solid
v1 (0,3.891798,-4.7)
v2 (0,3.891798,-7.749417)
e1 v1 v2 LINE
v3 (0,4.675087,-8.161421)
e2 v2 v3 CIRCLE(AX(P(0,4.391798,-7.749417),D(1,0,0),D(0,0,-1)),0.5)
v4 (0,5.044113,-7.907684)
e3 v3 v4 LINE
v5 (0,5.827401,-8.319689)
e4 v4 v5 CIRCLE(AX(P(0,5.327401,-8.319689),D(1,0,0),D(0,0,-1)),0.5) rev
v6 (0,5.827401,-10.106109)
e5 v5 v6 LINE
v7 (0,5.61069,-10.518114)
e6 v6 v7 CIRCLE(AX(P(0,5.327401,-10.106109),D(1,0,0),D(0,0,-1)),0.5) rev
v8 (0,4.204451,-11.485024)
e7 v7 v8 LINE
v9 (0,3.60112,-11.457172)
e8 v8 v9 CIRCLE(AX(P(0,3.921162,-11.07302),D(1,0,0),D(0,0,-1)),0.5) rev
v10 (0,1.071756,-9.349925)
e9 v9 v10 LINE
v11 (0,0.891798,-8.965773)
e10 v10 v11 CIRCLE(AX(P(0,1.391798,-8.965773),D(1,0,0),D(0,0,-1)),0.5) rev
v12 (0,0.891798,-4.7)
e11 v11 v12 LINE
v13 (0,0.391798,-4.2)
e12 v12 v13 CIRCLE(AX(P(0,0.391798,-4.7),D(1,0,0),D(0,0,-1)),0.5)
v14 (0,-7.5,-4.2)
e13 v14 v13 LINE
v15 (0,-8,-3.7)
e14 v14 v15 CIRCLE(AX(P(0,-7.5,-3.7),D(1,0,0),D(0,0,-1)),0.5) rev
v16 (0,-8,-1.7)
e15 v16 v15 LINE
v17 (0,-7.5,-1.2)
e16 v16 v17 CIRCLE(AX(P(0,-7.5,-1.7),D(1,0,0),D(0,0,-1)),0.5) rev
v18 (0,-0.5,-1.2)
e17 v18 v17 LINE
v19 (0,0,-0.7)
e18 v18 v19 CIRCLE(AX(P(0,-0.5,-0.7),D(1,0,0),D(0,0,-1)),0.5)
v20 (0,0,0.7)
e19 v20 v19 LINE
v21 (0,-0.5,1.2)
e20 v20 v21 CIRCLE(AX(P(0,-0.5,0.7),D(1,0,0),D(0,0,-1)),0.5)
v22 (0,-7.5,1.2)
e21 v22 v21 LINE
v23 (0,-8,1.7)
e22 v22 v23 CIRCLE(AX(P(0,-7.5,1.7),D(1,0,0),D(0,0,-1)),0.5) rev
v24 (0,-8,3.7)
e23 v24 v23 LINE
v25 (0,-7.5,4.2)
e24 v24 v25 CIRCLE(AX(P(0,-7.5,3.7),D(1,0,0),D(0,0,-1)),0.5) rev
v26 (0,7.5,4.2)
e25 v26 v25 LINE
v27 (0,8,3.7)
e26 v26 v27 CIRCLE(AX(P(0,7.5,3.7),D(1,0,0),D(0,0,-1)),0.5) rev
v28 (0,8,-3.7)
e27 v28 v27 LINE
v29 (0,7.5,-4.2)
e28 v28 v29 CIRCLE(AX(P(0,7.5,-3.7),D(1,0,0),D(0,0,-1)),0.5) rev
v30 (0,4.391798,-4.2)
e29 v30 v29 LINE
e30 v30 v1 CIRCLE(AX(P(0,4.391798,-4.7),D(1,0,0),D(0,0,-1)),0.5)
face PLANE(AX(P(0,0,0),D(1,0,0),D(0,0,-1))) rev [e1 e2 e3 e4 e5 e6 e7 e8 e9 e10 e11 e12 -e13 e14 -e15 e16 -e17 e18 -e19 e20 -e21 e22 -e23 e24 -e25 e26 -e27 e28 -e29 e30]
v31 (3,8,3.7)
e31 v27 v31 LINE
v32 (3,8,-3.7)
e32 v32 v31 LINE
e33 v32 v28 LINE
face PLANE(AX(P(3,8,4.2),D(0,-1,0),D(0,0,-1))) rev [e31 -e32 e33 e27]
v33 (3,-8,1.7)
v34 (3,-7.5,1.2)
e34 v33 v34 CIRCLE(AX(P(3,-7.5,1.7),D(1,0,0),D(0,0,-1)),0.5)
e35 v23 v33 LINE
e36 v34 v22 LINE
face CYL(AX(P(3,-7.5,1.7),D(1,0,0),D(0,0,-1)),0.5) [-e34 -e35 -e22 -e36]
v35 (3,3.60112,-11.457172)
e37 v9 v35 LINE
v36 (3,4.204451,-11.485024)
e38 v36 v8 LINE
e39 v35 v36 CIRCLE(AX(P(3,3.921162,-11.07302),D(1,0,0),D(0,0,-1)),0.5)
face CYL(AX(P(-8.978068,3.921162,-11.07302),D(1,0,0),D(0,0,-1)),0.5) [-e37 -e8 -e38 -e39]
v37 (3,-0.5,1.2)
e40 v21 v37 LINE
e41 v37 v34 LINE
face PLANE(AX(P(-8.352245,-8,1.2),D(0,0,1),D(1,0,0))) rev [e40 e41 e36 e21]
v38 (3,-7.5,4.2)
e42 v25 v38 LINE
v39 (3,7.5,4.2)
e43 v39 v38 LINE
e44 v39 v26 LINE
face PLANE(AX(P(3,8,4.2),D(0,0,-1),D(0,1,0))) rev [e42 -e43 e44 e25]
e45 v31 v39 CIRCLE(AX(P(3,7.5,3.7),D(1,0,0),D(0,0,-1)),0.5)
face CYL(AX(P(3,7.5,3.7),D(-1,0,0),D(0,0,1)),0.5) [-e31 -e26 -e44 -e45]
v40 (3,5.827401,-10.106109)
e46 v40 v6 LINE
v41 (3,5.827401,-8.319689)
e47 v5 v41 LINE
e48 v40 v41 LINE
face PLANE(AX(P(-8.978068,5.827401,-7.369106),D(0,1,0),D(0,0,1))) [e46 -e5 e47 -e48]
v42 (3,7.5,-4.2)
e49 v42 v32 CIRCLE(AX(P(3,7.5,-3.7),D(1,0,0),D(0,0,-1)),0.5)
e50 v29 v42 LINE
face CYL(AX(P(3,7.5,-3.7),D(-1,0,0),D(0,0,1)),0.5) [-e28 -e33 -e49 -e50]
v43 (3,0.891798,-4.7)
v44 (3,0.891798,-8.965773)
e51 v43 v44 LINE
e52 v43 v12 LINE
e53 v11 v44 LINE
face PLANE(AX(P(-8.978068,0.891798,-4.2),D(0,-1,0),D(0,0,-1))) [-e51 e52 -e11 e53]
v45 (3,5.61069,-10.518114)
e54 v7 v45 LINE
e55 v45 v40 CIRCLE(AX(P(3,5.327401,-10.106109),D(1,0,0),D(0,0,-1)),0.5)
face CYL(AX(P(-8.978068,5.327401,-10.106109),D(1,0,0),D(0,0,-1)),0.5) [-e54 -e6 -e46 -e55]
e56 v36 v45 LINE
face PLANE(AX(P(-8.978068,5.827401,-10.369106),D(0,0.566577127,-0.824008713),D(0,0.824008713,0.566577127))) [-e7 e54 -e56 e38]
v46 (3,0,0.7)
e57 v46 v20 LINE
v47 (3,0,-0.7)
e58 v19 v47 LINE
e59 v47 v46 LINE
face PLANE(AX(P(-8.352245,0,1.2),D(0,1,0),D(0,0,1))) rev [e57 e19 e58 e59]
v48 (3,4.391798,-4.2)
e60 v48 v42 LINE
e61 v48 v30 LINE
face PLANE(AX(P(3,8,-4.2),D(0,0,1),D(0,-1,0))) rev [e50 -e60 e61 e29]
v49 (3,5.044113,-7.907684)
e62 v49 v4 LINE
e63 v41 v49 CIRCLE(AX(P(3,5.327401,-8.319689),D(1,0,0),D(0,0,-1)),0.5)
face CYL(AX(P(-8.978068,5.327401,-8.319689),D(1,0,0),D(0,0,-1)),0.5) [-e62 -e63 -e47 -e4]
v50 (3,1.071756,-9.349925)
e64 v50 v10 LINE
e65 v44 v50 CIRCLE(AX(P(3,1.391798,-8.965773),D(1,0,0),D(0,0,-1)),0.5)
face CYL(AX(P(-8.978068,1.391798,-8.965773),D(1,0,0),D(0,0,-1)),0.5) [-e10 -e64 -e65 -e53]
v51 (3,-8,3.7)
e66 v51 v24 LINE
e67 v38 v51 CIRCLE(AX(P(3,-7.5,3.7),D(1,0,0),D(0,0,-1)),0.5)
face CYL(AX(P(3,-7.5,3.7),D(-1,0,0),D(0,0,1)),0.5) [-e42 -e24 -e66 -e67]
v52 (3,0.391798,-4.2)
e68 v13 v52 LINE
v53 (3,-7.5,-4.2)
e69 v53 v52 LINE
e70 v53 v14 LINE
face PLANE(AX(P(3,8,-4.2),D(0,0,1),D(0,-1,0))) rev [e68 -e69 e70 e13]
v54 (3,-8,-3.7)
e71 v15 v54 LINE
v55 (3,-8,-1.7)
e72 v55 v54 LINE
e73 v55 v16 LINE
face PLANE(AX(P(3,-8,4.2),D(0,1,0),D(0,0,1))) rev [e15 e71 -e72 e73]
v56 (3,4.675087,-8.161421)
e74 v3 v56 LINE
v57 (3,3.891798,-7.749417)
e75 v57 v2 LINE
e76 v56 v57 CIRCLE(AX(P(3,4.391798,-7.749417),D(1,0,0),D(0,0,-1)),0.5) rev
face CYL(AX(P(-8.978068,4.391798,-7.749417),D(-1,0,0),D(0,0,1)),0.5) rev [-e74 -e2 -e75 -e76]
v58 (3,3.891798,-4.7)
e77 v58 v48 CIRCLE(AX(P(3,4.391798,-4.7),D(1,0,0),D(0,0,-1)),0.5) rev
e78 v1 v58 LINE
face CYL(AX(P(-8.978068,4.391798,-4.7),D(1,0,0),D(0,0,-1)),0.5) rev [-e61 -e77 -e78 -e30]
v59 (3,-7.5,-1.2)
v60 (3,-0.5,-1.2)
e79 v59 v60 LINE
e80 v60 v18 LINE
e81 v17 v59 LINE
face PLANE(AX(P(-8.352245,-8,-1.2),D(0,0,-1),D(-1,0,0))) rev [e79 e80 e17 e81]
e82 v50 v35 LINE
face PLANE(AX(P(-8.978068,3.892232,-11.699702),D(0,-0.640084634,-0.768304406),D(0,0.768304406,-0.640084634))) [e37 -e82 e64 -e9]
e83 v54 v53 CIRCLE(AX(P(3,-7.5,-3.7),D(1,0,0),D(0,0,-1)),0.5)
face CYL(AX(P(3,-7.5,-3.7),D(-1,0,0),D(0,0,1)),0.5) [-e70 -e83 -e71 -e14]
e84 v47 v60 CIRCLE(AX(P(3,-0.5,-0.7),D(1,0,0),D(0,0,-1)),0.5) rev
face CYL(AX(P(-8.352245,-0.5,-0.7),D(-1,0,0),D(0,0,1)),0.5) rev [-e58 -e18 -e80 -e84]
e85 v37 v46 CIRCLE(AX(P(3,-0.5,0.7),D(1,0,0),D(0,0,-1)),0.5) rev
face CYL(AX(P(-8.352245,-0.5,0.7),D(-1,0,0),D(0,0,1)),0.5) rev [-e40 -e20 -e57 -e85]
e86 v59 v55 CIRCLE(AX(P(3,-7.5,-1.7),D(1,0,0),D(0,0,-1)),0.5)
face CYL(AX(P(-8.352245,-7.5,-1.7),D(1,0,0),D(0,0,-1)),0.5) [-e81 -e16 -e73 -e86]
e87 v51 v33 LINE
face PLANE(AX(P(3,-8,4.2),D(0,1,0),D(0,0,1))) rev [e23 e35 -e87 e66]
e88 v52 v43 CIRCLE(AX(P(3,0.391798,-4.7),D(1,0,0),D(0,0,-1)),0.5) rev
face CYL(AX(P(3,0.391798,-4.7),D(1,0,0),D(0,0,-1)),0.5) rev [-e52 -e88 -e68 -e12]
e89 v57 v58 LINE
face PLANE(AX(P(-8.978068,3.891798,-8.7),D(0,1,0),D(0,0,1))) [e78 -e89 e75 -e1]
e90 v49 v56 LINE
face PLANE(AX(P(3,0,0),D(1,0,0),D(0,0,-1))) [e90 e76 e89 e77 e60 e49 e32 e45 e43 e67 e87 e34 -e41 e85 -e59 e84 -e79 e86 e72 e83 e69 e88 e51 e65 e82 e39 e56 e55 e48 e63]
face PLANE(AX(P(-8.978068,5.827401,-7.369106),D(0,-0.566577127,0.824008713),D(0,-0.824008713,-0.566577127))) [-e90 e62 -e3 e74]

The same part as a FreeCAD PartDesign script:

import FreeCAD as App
import Part
import Sketcher

V = App.Vector
Q = App.Units.Quantity


def edges_at(feature, points):
    """Names of the edges that pass closest to the given points."""
    edges = feature.Shape.Edges
    near = lambda p: min(range(len(edges)), key=lambda i: edges[i].distToShape(Part.Vertex(*p))[0])
    return sorted({f"Edge{near(p) + 1}" for p in points})

doc = App.newDocument("Part")
body = doc.addObject("PartDesign::Body", "Body")

sketch1 = body.newObject("Sketcher::SketchObject", "Sketch")
sketch1.AttachmentSupport = (doc.getObject("YZ_Plane"), [""])
sketch1.MapMode = "FlatFace"
sketch1.addGeometry([
    Part.LineSegment(V(8, 4, 0), V(-8, 4, 0)),
    Part.LineSegment(V(-8, 4, 0), V(-8, -4, 0)),
    Part.LineSegment(V(-8, -4, 0), V(8, -4, 0)),
    Part.LineSegment(V(8, -4, 0), V(8, 4, 0)),
], False)
sketch1.addConstraint([
    Sketcher.Constraint("Coincident", 0, 2, 1, 1),
    Sketcher.Constraint("Coincident", 1, 2, 2, 1),
    Sketcher.Constraint("Coincident", 2, 2, 3, 1),
    Sketcher.Constraint("Coincident", 3, 2, 0, 1),
    Sketcher.Constraint("Horizontal", 0),
    Sketcher.Constraint("Vertical", 1),
    Sketcher.Constraint("Horizontal", 2),
    Sketcher.Constraint("Vertical", 3),
    Sketcher.Constraint("Symmetric", 0, 2, 2, 2, -1, 1),
    Sketcher.Constraint("DistanceX", 0, 2, 0, 1, Q("16 mm")),
    Sketcher.Constraint("DistanceY", 1, 2, 1, 1, Q("8.4 mm")),
])
pad1 = body.newObject("PartDesign::Pad", "Pad")
pad1.Profile = sketch1
pad1.Length = 3

sketch2 = body.newObject("Sketcher::SketchObject", "Sketch001")
sketch2.AttachmentSupport = (doc.getObject("YZ_Plane"), [""])
sketch2.MapMode = "FlatFace"
sketch2.AttachmentOffset = App.Placement(V(0, 0, 3), App.Rotation())
sketch2.addGeometry([
    Part.LineSegment(V(0, 1.2, 0), V(-8, 1.2, 0)),
    Part.LineSegment(V(-8, 1.2, 0), V(-8, -1.2, 0)),
    Part.LineSegment(V(-8, -1.2, 0), V(0, -1.2, 0)),
    Part.LineSegment(V(0, -1.2, 0), V(0, 1.2, 0)),
], False)
sketch2.addConstraint([
    Sketcher.Constraint("Coincident", 0, 2, 1, 1),
    Sketcher.Constraint("Coincident", 1, 2, 2, 1),
    Sketcher.Constraint("Coincident", 2, 2, 3, 1),
    Sketcher.Constraint("Coincident", 3, 2, 0, 1),
    Sketcher.Constraint("Horizontal", 0),
    Sketcher.Constraint("Vertical", 1),
    Sketcher.Constraint("Horizontal", 2),
    Sketcher.Constraint("Vertical", 3),
    Sketcher.Constraint("Symmetric", 2, 2, 3, 2, -1, 1),
    Sketcher.Constraint("DistanceX", 0, 2, 0, 1, Q("8 mm")),
    Sketcher.Constraint("DistanceY", 1, 2, 1, 1, Q("2.4 mm")),
])
pocket1 = body.newObject("PartDesign::Pocket", "Pocket")
pocket1.Profile = sketch2
pocket1.Length = 3

sketch3 = body.newObject("Sketcher::SketchObject", "Sketch002")
sketch3.AttachmentSupport = (doc.getObject("YZ_Plane"), [""])
sketch3.MapMode = "FlatFace"
sketch3.AttachmentOffset = App.Placement(V(0, 0, 3), App.Rotation())
sketch3.addGeometry([
    Part.LineSegment(V(3.9, -4.2, 0), V(0.9, -4.2, 0)),
    Part.LineSegment(V(0.9, -4.2, 0), V(0.9, -9.2, 0)),
    Part.LineSegment(V(0.9, -9.2, 0), V(3.9, -11.7, 0)),
    Part.LineSegment(V(3.9, -11.7, 0), V(5.8, -10.4, 0)),
    Part.LineSegment(V(5.8, -10.4, 0), V(5.8, -7.4, 0)),
    Part.LineSegment(V(5.8, -7.4, 0), V(3.9, -8.7, 0)),
    Part.LineSegment(V(3.9, -8.7, 0), V(3.9, -4.2, 0)),
], False)
sketch3.addConstraint([
    Sketcher.Constraint("Coincident", 0, 2, 1, 1),
    Sketcher.Constraint("Coincident", 1, 2, 2, 1),
    Sketcher.Constraint("Coincident", 2, 2, 3, 1),
    Sketcher.Constraint("Coincident", 3, 2, 4, 1),
    Sketcher.Constraint("Coincident", 4, 2, 5, 1),
    Sketcher.Constraint("Coincident", 5, 2, 6, 1),
    Sketcher.Constraint("Coincident", 6, 2, 0, 1),
    Sketcher.Constraint("Horizontal", 0),
    Sketcher.Constraint("Vertical", 1),
    Sketcher.Constraint("Vertical", 4),
    Sketcher.Constraint("Vertical", 6),
    Sketcher.Constraint("Parallel", 3, 5),
    Sketcher.Constraint("Equal", 0, 4),
    Sketcher.Constraint("DistanceX", 0, 2, 0, 1, Q("3 mm")),
    Sketcher.Constraint("DistanceY", 1, 2, 1, 1, Q("5 mm")),
    Sketcher.Constraint("DistanceY", 6, 1, 6, 2, Q("4.5 mm")),
    Sketcher.Constraint("DistanceY", 0, 2, -1, 1, Q("4.2 mm")),
    Sketcher.Constraint("DistanceX", -1, 1, 0, 2, Q("0.891798 mm")),
    Sketcher.Constraint("DistanceY", 2, 2, -1, 1, Q("11.699702 mm")),
    Sketcher.Constraint("DistanceX", -1, 1, 3, 2, Q("5.827401 mm")),
    Sketcher.Constraint("Distance", 3, Q("2.348481 mm")),
])
pad2 = body.newObject("PartDesign::Pad", "Pad001")
pad2.Profile = sketch3
pad2.Length = 3
pad2.Reversed = True
doc.recompute()

fillet = body.newObject("PartDesign::Fillet", "Fillet")
fillet.Base = (pad2, edges_at(pad2, [
    (1.5, -8, 1.2),
    (1.5, 0, 1.2),
    (1.5, 0, -1.2),
    (1.5, -8, -1.2),
    (1.5, 3.892, -4.2),
    (1.5, 3.892, -8.7),
    (1.5, 5.827, -7.369),
    (1.5, 5.827, -10.369),
    (1.5, 3.892, -11.7),
    (1.5, 0.892, -9.2),
    (1.5, 0.892, -4.2),
    (1.5, 8, 4.2),
    (1.5, 8, -4.2),
    (1.5, -8, -4.2),
    (1.5, -8, 4.2),
]))
fillet.Radius = 0.5

doc.recompute()
